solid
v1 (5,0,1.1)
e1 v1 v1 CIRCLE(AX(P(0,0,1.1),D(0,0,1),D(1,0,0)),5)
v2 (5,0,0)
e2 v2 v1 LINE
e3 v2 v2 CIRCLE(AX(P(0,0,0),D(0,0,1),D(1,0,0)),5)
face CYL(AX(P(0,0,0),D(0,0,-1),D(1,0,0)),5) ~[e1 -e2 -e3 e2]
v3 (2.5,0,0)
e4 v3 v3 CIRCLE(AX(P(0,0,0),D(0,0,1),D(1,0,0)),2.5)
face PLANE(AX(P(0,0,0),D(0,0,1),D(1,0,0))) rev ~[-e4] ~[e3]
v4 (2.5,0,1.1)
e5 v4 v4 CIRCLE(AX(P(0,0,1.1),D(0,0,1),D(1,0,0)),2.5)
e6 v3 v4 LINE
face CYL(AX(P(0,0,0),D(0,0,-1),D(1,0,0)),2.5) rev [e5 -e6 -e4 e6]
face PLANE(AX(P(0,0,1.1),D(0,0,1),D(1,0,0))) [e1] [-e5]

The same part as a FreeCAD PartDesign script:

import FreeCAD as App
import Part
import Sketcher

doc = App.newDocument("Part")
params = doc.addObject("Spreadsheet::Sheet", "Params")
for row, (alias, value) in enumerate([
    ("sketch1_diameter", "10 mm"),
    ("sketch1_diameter2", "5 mm"),
    ("pad1_length", "1.1 mm"),
], start=1):
    params.set(f"A{row}", alias)
    params.set(f"B{row}", "=" + value)
    params.setAlias(f"B{row}", alias)

body = doc.addObject("PartDesign::Body", "Body")

sketch1 = doc.addObject("Sketcher::SketchObject", "Sketch")
body.addObject(sketch1)
sketch1.AttachmentSupport = (doc.XY_Plane, [""])
sketch1.MapMode = "FlatFace"
sketch1.addGeometry([
    Part.Circle(App.Vector(0, 0, 0), App.Vector(0, 0, 1), 5),
    Part.Circle(App.Vector(0, 0, 0), App.Vector(0, 0, 1), 2.5),
], False)
sketch1.addConstraint([
    Sketcher.Constraint("Coincident", 0, 3, -1, 1),
    Sketcher.Constraint("Coincident", 1, 3, -1, 1),
    Sketcher.Constraint("Diameter", 0, 10.0),
    Sketcher.Constraint("Diameter", 1, 5.0),
])
sketch1.setExpression("Constraints[2]", "Params.sketch1_diameter")
sketch1.setExpression("Constraints[3]", "Params.sketch1_diameter2")
pad1 = doc.addObject("PartDesign::Pad", "Pad")
body.addObject(pad1)
pad1.Profile = sketch1
pad1.setExpression("Length", "Params.pad1_length")

doc.recompute()
